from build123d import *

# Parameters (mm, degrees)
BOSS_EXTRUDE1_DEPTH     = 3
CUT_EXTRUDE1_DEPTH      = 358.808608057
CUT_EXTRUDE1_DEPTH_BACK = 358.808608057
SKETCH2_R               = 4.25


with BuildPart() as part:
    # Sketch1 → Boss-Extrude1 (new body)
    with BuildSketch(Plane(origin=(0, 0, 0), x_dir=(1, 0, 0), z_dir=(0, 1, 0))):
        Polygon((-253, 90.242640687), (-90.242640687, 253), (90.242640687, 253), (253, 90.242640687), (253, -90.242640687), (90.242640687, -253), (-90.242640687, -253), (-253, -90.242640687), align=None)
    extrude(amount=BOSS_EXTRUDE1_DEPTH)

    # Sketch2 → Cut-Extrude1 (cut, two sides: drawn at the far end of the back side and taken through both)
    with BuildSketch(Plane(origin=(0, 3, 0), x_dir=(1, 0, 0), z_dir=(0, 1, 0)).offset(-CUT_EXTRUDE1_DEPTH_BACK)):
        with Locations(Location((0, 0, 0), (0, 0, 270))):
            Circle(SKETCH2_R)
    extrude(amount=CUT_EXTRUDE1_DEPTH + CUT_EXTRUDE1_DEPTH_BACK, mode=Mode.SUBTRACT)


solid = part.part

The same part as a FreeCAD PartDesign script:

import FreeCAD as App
import Part
import Sketcher
from FreeCAD import Vector

doc = App.newDocument("Part")
body = doc.addObject("PartDesign::Body", "Body")

# Sketch on XZ plane
sketch1 = body.newObject("Sketcher::SketchObject", "Sketch")
sketch1.AttachmentSupport = (doc.getObject("XZ_Plane"), [""])
sketch1.MapMode = "FlatFace"
sketch1.addGeometry([
    Part.LineSegment(Vector(-90, -253, 0), Vector(-253, -90, 0)),  # 0
    Part.LineSegment(Vector(-253, -90, 0), Vector(-253, 90, 0)),  # 1
    Part.LineSegment(Vector(-253, 90, 0), Vector(-90, 253, 0)),  # 2
    Part.LineSegment(Vector(-90, 253, 0), Vector(90, 253, 0)),  # 3
    Part.LineSegment(Vector(90, 253, 0), Vector(253, 90, 0)),  # 4
    Part.LineSegment(Vector(253, 90, 0), Vector(253, -90, 0)),  # 5
    Part.LineSegment(Vector(253, -90, 0), Vector(90, -253, 0)),  # 6
    Part.LineSegment(Vector(90, -253, 0), Vector(-90, -253, 0)),  # 7
], False)
sketch1.addConstraint([
    Sketcher.Constraint("Coincident", 0, 2, 1, 1),
    Sketcher.Constraint("Coincident", 1, 2, 2, 1),
    Sketcher.Constraint("Coincident", 2, 2, 3, 1),
    Sketcher.Constraint("Coincident", 3, 2, 4, 1),
    Sketcher.Constraint("Coincident", 4, 2, 5, 1),
    Sketcher.Constraint("Coincident", 5, 2, 6, 1),
    Sketcher.Constraint("Coincident", 6, 2, 7, 1),
    Sketcher.Constraint("Coincident", 7, 2, 0, 1),
    Sketcher.Constraint("Vertical", 1),
    Sketcher.Constraint("Horizontal", 3),
    Sketcher.Constraint("Vertical", 5),
    Sketcher.Constraint("Horizontal", 7),
    Sketcher.Constraint("Symmetric", 0, 2, 4, 2, -1, 1),
    Sketcher.Constraint("Symmetric", 2, 2, 6, 2, -1, 1),
    Sketcher.Constraint("Perpendicular", 0, 2),
    Sketcher.Constraint("Perpendicular", 2, 4),
    Sketcher.Constraint("Perpendicular", 4, 6),
    Sketcher.Constraint("Horizontal", 1, 2, 4, 2),
    Sketcher.Constraint("Vertical", 3, 2, 6, 2),
    Sketcher.Constraint("Equal", 7, 1),
    Sketcher.Constraint("DistanceX", 0, 2, -1, 1, 253.0),
    Sketcher.Constraint("DistanceX", 3, 1, 3, 2, 180.485281),
])
pad1 = body.newObject("PartDesign::Pad", "Pad")
pad1.Profile = sketch1
pad1.Length = 3
pad1.Reversed = True

# Sketch on XZ plane
sketch2 = body.newObject("Sketcher::SketchObject", "Sketch001")
sketch2.AttachmentSupport = (doc.getObject("XZ_Plane"), [""])
sketch2.MapMode = "FlatFace"
sketch2.AttachmentOffset = App.Placement(Vector(0, 0, -3), App.Rotation())
sketch2.addGeometry(Part.Circle(Vector(0, 0, 0), Vector(0, 0, 1), 4.2), False)
sketch2.addConstraint([
    Sketcher.Constraint("Coincident", 0, 3, -1, 1),
    Sketcher.Constraint("Diameter", 0, 8.5),
])
pocket1 = body.newObject("PartDesign::Pocket", "Pocket")
pocket1.Profile = sketch2
pocket1.Type = "ThroughAll"
pocket1.Midplane = True

doc.recompute()
